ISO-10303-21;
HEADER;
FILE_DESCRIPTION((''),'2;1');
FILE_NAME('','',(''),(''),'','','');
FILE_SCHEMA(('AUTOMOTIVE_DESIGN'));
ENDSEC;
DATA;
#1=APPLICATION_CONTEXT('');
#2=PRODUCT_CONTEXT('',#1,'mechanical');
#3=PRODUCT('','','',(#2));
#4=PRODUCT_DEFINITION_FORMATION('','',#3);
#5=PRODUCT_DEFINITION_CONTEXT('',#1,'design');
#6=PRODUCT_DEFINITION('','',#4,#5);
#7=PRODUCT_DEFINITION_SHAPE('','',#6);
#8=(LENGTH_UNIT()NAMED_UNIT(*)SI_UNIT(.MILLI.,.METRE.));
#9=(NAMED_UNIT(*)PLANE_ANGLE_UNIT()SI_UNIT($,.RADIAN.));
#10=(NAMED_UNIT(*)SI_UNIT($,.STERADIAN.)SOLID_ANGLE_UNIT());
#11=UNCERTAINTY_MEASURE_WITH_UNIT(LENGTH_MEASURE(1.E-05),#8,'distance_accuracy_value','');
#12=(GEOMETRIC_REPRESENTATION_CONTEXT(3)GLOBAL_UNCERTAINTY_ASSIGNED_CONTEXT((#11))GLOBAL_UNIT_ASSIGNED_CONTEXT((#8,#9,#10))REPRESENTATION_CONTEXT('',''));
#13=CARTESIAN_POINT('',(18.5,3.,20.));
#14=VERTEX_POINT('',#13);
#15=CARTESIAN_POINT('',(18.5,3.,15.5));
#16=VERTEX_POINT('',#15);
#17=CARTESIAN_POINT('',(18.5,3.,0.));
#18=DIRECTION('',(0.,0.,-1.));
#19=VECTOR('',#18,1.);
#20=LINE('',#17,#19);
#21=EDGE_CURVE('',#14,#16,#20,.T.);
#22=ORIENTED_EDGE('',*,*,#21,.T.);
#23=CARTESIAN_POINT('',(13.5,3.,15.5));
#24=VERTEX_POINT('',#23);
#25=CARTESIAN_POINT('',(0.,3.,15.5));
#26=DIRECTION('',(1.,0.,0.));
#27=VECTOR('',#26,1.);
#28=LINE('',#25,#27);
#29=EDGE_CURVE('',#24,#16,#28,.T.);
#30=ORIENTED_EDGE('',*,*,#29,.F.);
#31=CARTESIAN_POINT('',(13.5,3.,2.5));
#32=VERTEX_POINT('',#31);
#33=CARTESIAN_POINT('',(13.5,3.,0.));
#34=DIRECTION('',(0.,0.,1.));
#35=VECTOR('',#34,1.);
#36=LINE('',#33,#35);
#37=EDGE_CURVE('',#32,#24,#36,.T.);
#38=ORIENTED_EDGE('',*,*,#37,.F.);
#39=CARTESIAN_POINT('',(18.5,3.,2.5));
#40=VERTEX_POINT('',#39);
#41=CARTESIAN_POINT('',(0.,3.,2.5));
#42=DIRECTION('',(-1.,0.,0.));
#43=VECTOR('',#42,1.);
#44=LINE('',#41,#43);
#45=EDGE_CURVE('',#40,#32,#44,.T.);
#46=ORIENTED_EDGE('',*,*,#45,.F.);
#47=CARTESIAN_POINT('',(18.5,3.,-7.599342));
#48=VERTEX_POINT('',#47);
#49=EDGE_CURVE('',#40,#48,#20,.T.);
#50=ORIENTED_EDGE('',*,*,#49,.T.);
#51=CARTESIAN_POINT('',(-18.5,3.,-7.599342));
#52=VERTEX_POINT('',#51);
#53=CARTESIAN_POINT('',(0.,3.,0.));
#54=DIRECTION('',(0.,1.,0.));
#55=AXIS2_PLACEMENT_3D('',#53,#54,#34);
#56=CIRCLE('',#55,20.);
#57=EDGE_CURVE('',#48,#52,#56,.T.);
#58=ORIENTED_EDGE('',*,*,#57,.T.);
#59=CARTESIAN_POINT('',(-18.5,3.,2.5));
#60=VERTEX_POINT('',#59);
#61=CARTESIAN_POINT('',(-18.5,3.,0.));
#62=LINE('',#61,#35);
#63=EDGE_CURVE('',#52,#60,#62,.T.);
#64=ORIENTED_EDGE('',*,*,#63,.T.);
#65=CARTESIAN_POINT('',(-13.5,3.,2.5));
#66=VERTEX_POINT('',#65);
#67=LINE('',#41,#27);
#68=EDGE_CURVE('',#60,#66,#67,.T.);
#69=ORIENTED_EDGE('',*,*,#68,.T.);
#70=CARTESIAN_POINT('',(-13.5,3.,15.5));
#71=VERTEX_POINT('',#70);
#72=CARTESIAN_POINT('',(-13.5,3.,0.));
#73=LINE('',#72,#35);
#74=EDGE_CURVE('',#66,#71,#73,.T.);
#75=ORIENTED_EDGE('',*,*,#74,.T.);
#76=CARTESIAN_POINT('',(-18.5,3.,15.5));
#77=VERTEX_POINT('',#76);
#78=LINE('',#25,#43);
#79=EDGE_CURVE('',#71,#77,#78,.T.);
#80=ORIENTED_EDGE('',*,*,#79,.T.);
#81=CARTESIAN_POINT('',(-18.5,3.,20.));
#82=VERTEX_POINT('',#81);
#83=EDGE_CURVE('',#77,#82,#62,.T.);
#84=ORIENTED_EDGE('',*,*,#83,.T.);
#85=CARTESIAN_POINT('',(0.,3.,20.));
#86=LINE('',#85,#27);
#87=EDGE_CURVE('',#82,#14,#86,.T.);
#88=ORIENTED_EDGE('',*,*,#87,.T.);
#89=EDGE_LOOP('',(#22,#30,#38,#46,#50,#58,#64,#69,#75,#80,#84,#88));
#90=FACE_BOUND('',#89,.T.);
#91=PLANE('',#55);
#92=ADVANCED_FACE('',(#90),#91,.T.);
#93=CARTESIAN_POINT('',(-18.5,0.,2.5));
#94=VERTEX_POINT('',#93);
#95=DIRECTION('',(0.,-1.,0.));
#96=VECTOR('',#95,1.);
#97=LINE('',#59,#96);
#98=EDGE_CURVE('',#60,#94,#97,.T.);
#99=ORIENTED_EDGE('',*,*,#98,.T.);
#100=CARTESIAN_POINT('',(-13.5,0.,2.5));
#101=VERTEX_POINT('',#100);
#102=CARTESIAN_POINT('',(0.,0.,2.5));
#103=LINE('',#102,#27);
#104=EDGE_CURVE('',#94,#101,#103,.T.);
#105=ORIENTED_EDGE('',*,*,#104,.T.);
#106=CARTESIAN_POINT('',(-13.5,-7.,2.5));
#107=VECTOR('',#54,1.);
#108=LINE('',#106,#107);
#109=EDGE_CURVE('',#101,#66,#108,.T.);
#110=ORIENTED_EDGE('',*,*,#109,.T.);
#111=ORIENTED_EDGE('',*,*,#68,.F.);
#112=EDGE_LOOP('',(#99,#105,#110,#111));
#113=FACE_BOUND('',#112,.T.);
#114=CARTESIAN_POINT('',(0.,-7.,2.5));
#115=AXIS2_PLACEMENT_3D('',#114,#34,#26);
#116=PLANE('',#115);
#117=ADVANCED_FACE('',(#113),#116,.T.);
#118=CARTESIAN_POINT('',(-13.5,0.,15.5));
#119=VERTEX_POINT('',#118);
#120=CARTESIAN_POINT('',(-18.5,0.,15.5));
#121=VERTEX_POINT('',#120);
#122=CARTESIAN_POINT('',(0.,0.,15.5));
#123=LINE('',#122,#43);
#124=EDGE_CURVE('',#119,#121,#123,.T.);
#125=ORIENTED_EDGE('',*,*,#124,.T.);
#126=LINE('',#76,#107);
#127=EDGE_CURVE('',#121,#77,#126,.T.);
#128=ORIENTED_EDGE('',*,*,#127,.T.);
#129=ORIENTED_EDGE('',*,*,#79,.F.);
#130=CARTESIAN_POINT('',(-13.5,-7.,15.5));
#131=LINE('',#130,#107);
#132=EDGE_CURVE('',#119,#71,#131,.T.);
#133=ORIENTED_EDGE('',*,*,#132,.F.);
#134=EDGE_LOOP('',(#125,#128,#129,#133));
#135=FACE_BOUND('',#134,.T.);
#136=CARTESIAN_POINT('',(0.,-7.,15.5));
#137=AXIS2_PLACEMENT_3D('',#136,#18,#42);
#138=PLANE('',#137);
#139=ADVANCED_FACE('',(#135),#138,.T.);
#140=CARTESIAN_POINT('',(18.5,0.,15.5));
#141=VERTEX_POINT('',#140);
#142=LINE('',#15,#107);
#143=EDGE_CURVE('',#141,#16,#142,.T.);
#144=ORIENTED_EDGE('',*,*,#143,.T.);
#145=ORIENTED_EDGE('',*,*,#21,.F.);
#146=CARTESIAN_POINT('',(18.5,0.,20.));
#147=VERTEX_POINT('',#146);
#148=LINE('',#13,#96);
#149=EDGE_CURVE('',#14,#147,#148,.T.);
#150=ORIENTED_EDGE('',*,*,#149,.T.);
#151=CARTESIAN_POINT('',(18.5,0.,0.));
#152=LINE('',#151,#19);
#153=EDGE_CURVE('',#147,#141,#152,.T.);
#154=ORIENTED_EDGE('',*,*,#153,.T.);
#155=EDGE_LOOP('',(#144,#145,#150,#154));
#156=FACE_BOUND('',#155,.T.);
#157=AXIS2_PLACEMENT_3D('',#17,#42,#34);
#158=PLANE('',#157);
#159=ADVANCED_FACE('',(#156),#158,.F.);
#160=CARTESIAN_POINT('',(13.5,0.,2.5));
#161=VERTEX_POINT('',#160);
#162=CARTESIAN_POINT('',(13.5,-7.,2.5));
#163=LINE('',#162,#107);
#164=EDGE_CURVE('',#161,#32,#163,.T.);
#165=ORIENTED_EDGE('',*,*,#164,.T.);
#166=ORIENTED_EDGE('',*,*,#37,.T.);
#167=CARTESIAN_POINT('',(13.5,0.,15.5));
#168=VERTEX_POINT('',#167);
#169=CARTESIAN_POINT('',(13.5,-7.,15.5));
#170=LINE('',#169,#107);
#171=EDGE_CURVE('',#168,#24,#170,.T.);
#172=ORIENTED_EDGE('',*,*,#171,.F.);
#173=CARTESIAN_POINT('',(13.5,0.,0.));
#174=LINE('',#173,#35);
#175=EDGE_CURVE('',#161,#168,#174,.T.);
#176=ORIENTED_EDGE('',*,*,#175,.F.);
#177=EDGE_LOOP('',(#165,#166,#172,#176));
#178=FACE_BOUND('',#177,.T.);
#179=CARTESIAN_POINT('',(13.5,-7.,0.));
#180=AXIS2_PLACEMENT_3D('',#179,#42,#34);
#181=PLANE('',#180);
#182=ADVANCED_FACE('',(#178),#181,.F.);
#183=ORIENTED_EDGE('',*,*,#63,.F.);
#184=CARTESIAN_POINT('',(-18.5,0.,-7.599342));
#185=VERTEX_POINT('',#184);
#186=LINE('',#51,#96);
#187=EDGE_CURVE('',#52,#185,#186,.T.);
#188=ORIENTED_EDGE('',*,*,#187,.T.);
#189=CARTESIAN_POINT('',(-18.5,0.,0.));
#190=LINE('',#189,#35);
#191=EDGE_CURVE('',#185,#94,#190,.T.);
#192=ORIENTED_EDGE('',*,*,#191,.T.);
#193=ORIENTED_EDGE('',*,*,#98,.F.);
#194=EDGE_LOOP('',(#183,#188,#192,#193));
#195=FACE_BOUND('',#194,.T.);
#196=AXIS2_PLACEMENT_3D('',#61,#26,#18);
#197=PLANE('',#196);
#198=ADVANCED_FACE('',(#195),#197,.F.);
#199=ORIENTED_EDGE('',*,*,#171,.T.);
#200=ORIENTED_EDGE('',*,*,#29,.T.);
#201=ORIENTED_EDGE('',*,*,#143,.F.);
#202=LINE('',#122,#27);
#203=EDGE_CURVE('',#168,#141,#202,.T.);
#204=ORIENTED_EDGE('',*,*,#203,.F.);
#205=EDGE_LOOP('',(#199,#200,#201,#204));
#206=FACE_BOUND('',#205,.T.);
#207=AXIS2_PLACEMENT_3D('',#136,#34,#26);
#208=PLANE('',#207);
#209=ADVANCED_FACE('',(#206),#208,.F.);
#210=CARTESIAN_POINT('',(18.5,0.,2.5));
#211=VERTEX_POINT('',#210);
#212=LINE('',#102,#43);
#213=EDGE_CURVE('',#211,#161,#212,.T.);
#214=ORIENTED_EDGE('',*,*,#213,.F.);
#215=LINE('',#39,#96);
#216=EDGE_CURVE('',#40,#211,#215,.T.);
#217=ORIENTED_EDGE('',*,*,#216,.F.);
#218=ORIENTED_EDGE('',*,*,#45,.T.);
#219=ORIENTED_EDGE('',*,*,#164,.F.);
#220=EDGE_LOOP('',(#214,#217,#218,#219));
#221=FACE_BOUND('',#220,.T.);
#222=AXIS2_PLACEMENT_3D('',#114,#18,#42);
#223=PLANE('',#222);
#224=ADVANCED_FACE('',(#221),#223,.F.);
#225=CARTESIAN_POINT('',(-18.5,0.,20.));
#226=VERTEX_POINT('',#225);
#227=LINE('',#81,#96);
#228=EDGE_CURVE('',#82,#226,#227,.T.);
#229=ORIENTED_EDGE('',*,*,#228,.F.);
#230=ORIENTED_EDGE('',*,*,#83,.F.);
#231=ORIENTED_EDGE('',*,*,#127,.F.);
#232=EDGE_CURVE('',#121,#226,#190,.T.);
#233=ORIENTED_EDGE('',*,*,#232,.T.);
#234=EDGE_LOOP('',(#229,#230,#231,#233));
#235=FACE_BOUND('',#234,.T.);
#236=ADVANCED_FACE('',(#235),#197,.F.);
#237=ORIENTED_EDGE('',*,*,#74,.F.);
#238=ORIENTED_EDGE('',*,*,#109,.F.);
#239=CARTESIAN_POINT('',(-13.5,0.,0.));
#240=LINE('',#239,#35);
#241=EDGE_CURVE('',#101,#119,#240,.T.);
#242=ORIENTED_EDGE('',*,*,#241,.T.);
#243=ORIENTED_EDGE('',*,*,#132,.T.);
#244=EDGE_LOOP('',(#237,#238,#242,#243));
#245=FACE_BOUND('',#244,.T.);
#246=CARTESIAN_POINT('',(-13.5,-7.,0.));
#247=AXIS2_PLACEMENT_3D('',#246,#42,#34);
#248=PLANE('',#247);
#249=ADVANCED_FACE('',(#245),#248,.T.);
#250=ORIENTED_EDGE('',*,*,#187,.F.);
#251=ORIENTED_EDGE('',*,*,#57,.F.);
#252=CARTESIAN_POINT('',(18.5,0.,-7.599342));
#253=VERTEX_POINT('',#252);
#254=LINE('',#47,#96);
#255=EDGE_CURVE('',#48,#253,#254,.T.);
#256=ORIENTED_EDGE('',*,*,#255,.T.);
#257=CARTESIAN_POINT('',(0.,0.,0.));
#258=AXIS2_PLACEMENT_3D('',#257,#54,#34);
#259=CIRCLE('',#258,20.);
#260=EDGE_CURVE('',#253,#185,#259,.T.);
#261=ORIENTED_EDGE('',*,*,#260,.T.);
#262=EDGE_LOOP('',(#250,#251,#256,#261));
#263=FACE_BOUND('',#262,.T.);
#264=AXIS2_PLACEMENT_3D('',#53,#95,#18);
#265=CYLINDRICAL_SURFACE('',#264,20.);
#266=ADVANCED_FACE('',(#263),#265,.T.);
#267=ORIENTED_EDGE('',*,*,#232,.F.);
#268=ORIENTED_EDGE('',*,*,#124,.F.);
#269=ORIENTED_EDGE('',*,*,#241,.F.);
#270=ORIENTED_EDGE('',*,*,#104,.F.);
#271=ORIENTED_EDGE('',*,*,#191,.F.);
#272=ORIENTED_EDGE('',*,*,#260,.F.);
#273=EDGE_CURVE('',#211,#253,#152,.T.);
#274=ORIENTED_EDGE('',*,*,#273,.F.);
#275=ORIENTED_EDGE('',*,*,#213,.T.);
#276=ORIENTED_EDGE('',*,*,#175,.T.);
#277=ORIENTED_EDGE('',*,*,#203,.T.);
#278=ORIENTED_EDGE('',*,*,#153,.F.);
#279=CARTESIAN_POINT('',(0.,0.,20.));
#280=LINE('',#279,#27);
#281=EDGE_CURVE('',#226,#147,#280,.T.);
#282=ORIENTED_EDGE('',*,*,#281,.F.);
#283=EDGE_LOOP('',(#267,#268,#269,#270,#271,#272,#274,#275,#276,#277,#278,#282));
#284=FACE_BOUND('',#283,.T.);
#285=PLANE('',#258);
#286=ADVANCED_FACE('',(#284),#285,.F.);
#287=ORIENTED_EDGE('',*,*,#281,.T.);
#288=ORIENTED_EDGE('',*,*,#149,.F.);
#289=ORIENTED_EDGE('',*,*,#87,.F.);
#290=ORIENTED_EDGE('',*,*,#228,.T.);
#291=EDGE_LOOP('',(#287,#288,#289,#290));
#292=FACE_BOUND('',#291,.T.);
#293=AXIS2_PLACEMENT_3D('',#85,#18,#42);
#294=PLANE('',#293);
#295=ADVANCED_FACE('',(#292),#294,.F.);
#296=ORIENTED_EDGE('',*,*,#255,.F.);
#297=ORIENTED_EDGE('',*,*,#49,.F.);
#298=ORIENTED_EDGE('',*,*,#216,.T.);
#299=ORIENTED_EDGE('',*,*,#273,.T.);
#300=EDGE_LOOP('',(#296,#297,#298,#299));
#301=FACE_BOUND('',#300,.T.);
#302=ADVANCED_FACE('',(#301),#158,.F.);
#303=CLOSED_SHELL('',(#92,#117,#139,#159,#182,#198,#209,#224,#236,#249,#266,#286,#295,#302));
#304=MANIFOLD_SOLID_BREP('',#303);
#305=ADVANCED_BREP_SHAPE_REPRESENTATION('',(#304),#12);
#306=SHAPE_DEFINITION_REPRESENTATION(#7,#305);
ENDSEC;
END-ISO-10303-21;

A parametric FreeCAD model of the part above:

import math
import FreeCAD as App
import Part
import Sketcher

V = App.Vector


def add_polygon(sketch, points):
    """Adds a closed chain of lines whose ends are joined by coincident constraints."""
    first, n = sketch.GeometryCount, len(points)
    for a, b in zip(points, points[1:] + points[:1]):
        sketch.addGeometry(Part.LineSegment(App.Vector(*a, 0), App.Vector(*b, 0)), False)
    for i in range(n):
        sketch.addConstraint(Sketcher.Constraint("Coincident", first + i, 2, first + (i + 1) % n, 1))

doc = App.newDocument("Part")
body = doc.addObject("PartDesign::Body", "Body")

# Sketch on XZ plane
sketch1 = doc.addObject("Sketcher::SketchObject", "Sketch")
body.addObject(sketch1)
sketch1.AttachmentSupport = (doc.XZ_Plane, [""])
sketch1.MapMode = "FlatFace"
sketch1.addGeometry([
    Part.ArcOfCircle(Part.Circle(V(0, 0, 0), V(0, 0, 1), 20), math.radians(-157.668355), math.radians(-22.331645)),
    Part.LineSegment(V(-18.5, -7.599342, 0), V(-18.5, 20, 0)),
    Part.LineSegment(V(-18.5, 20, 0), V(18.5, 20, 0)),
    Part.LineSegment(V(18.5, 20, 0), V(18.5, -7.599342, 0)),
], False)
sketch1.addConstraint([
    Sketcher.Constraint("Coincident", 0, 1, 1, 1),
    Sketcher.Constraint("Coincident", 1, 2, 2, 1),
    Sketcher.Constraint("Coincident", 2, 2, 3, 1),
    Sketcher.Constraint("Coincident", 3, 2, 0, 2),
    Sketcher.Constraint("Vertical", 1),
    Sketcher.Constraint("Horizontal", 2),
    Sketcher.Constraint("Vertical", 3),
    Sketcher.Constraint("Coincident", 0, 3, -1, 1),
    Sketcher.Constraint("Horizontal", 0, 1, 3, 2),
    Sketcher.Constraint("Radius", 0, 20.0),
    Sketcher.Constraint("DistanceX", 2, 1, 2, 2, 37.0),
    Sketcher.Constraint("DistanceY", -1, 1, 1, 2, 20.0),
])
pad1 = doc.addObject("PartDesign::Pad", "Pad")
body.addObject(pad1)
pad1.Profile = sketch1
pad1.Length = 3
pad1.Reversed = True

# Sketch on XZ plane
sketch2 = doc.addObject("Sketcher::SketchObject", "Sketch001")
body.addObject(sketch2)
sketch2.AttachmentSupport = (doc.XZ_Plane, [""])
sketch2.MapMode = "FlatFace"
sketch2.AttachmentOffset = App.Placement(V(0, 0, -3), App.Rotation())
add_polygon(sketch2, [(-18.5, 2.5), (-18.5, 15.5), (-13.5, 15.5), (-13.5, 2.5)])  # lines 0-3
add_polygon(sketch2, [(13.5, 2.5), (13.5, 15.5), (18.5, 15.5), (18.5, 2.5)])  # lines 4-7
sketch2.addConstraint([
    Sketcher.Constraint("Vertical", 0),
    Sketcher.Constraint("Horizontal", 1),
    Sketcher.Constraint("Vertical", 2),
    Sketcher.Constraint("Horizontal", 3),
    Sketcher.Constraint("Vertical", 4),
    Sketcher.Constraint("Horizontal", 5),
    Sketcher.Constraint("Vertical", 6),
    Sketcher.Constraint("Horizontal", 7),
    Sketcher.Constraint("Symmetric", 1, 2, 4, 2, -2),
    Sketcher.Constraint("Symmetric", 3, 2, 6, 2, -2),
    Sketcher.Constraint("DistanceX", 1, 1, 1, 2, 5.0),
    Sketcher.Constraint("DistanceY", 0, 1, 0, 2, 13.0),
    Sketcher.Constraint("DistanceX", 1, 2, 4, 2, 27.0),
    Sketcher.Constraint("DistanceY", -1, 1, 0, 2, 15.5),
])
pocket1 = doc.addObject("PartDesign::Pocket", "Pocket")
body.addObject(pocket1)
pocket1.Profile = sketch2
pocket1.Length = 10
pocket1.Reversed = True

doc.recompute()
